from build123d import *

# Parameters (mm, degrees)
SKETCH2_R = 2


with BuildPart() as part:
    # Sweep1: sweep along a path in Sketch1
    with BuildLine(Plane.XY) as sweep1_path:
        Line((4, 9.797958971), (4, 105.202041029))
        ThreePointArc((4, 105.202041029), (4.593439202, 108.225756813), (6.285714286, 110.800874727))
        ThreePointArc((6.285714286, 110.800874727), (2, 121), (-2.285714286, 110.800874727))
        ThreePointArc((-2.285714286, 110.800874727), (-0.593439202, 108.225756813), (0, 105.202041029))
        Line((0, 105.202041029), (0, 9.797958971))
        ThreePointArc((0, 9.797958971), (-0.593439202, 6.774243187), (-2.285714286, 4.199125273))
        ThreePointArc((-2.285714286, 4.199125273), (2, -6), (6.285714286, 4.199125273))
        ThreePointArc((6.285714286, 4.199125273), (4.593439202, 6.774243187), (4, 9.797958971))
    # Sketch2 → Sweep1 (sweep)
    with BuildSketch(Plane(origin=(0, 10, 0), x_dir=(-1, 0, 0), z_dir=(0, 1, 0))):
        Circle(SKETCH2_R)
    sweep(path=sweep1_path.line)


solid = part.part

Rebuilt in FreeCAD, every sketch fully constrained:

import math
import FreeCAD as App
import Part
import Sketcher
Q = App.Units.Quantity

doc = App.newDocument("Part")
body = doc.addObject("PartDesign::Body", "Body")

sketch1 = doc.addObject("Sketcher::SketchObject", "Sketch")
body.addObject(sketch1)
sketch1.AttachmentSupport = (doc.XZ_Plane, [""])
sketch1.MapMode = "FlatFace"
sketch1.AttachmentOffset = App.Placement(App.Vector(0, 0, -10), App.Rotation())
sketch1.addGeometry(Part.Circle(App.Vector(0, 0, 0), App.Vector(0, 0, 1), 2), False)
sketch1.addConstraint([
    Sketcher.Constraint("Coincident", 0, 3, -1, 1),
    Sketcher.Constraint("Diameter", 0, Q("4 mm")),
])

sketch2 = doc.addObject("Sketcher::SketchObject", "Sketch001")
body.addObject(sketch2)
sketch2.AttachmentSupport = (doc.XY_Plane, [""])
sketch2.MapMode = "FlatFace"
sketch2.addGeometry([
    Part.LineSegment(App.Vector(4, 10, 0), App.Vector(4, 105, 0)),
    Part.ArcOfCircle(Part.Circle(App.Vector(12, 105, 0), App.Vector(0, 0, 1), 8), math.radians(136), math.radians(180)),
    Part.ArcOfCircle(Part.Circle(App.Vector(2, 115, 0), App.Vector(0, 0, 1), 6), math.radians(-44), math.radians(224)),
    Part.ArcOfCircle(Part.Circle(App.Vector(-8, 105, 0), App.Vector(0, 0, 1), 8), math.radians(0), math.radians(44)),
    Part.LineSegment(App.Vector(0, 105, 0), App.Vector(0, 10, 0)),
    Part.ArcOfCircle(Part.Circle(App.Vector(-8, 10, 0), App.Vector(0, 0, 1), 8), math.radians(-44), math.radians(0)),
    Part.ArcOfCircle(Part.Circle(App.Vector(2, 0, 0), App.Vector(0, 0, 1), 6), math.radians(136), math.radians(404)),
    Part.ArcOfCircle(Part.Circle(App.Vector(12, 10, 0), App.Vector(0, 0, 1), 8), math.radians(-180), math.radians(-136)),
], False)
sketch2.addConstraint([
    Sketcher.Constraint("Tangent", 0, 2, 1, 2),
    Sketcher.Constraint("Tangent", 1, 1, 2, 1),
    Sketcher.Constraint("Tangent", 2, 2, 3, 2),
    Sketcher.Constraint("Tangent", 3, 1, 4, 1),
    Sketcher.Constraint("Tangent", 4, 2, 5, 2),
    Sketcher.Constraint("Tangent", 5, 1, 6, 1),
    Sketcher.Constraint("Tangent", 6, 2, 7, 2),
    Sketcher.Constraint("Tangent", 7, 1, 0, 1),
    Sketcher.Constraint("Vertical", 0),
    Sketcher.Constraint("Vertical", 4),
    Sketcher.Constraint("Equal", 1, 3),
    Sketcher.Constraint("Equal", 3, 5),
    Sketcher.Constraint("Equal", 2, 6),
    Sketcher.Constraint("Equal", 5, 7),
    Sketcher.Constraint("PointOnObject", 6, 3, -1),
    Sketcher.Constraint("PointOnObject", 3, 1, -2),
    Sketcher.Constraint("Horizontal", 1, 3, 3, 3),
    Sketcher.Constraint("Horizontal", 5, 3, 7, 3),
    Sketcher.Constraint("Radius", 1, Q("8 mm")),
    Sketcher.Constraint("Radius", 2, Q("6 mm")),
    Sketcher.Constraint("DistanceX", -1, 1, 1, 3, Q("12 mm")),
    Sketcher.Constraint("DistanceY", -1, 1, 2, 3, Q("115 mm")),
])
doc.recompute()

additivepipe = doc.addObject("PartDesign::AdditivePipe", "AdditivePipe")
body.addObject(additivepipe)
additivepipe.Profile = sketch1
additivepipe.Spine = (sketch2, ["Edge1", "Edge2", "Edge3", "Edge4", "Edge5", "Edge6", "Edge7", "Edge8"])

doc.recompute()
